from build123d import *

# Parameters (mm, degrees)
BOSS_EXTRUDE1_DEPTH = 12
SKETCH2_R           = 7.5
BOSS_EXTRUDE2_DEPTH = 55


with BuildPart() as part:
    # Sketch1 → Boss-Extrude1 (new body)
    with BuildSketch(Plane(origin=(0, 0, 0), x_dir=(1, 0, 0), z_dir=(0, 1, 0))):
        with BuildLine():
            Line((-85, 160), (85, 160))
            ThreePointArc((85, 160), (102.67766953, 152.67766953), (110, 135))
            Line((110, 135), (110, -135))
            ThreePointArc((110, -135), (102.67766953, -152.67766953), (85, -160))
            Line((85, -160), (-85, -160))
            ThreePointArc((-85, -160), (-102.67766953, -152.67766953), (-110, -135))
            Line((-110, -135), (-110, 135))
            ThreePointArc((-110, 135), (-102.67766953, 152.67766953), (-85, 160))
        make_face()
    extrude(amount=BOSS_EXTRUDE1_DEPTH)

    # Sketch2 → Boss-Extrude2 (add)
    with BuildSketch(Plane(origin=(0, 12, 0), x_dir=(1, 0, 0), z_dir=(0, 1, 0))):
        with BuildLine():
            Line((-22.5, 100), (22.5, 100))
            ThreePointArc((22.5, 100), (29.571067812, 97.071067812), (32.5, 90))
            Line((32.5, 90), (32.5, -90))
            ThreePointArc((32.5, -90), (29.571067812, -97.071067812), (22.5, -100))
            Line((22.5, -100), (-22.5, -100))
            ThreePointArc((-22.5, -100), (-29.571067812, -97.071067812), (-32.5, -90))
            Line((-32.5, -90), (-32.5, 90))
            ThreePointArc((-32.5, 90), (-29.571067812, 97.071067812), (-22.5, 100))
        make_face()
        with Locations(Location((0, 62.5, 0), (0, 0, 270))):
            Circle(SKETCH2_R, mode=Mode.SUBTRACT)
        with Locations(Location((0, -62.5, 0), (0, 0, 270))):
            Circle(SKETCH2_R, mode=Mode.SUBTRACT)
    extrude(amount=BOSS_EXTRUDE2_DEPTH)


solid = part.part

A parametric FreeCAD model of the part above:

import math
import FreeCAD as App
import Part
import Sketcher
Q = App.Units.Quantity

doc = App.newDocument("Part")
params = doc.addObject("Spreadsheet::Sheet", "Params")
for row, (alias, value) in enumerate([
    ("sketch1_radius", "25 mm"),
    ("sketch1_width", "170 mm"),
    ("sketch1_height", "270 mm"),
    ("pad1_length", "12 mm"),
    ("sketch2_diameter", "15 mm"),
    ("sketch2_radius", "10 mm"),
    ("sketch2_width", "45 mm"),
    ("sketch2_height", "180 mm"),
    ("pad2_length", "55 mm"),
], start=1):
    params.set(f"A{row}", alias)
    params.set(f"B{row}", "=" + value)
    params.setAlias(f"B{row}", alias)

body = doc.addObject("PartDesign::Body", "Body")

# Sketch on XZ plane
sketch1 = body.newObject("Sketcher::SketchObject", "Sketch")
sketch1.AttachmentSupport = (doc.getObject("XZ_Plane"), [""])
sketch1.MapMode = "FlatFace"
sketch1.addGeometry([
    Part.LineSegment(App.Vector(85, -160, 0), App.Vector(-85, -160, 0)),  # 0
    Part.ArcOfCircle(Part.Circle(App.Vector(-85, -135, 0), App.Vector(0, 0, 1), 25), math.radians(180), math.radians(270)),  # 1
    Part.LineSegment(App.Vector(-110, -135, 0), App.Vector(-110, 135, 0)),  # 2
    Part.ArcOfCircle(Part.Circle(App.Vector(-85, 135, 0), App.Vector(0, 0, 1), 25), math.radians(90), math.radians(180)),  # 3
    Part.LineSegment(App.Vector(-85, 160, 0), App.Vector(85, 160, 0)),  # 4
    Part.ArcOfCircle(Part.Circle(App.Vector(85, 135, 0), App.Vector(0, 0, 1), 25), math.radians(0), math.radians(90)),  # 5
    Part.LineSegment(App.Vector(110, 135, 0), App.Vector(110, -135, 0)),  # 6
    Part.ArcOfCircle(Part.Circle(App.Vector(85, -135, 0), App.Vector(0, 0, 1), 25), math.radians(-90), math.radians(0)),  # 7
], False)
sketch1.addConstraint([
    Sketcher.Constraint("Tangent", 0, 2, 1, 2),
    Sketcher.Constraint("Tangent", 1, 1, 2, 1),
    Sketcher.Constraint("Tangent", 2, 2, 3, 2),
    Sketcher.Constraint("Tangent", 3, 1, 4, 1),
    Sketcher.Constraint("Tangent", 4, 2, 5, 2),
    Sketcher.Constraint("Tangent", 5, 1, 6, 1),
    Sketcher.Constraint("Tangent", 6, 2, 7, 2),
    Sketcher.Constraint("Tangent", 7, 1, 0, 1),
    Sketcher.Constraint("Horizontal", 0),
    Sketcher.Constraint("Vertical", 2),
    Sketcher.Constraint("Horizontal", 4),
    Sketcher.Constraint("Vertical", 6),
    Sketcher.Constraint("Equal", 1, 3),
    Sketcher.Constraint("Equal", 3, 5),
    Sketcher.Constraint("Equal", 5, 7),
    Sketcher.Constraint("Symmetric", 1, 3, 5, 3, -1, 1),
    Sketcher.Constraint("Radius", 1, Q("25 mm")),
    Sketcher.Constraint("DistanceX", 0, 2, 0, 1, Q("170 mm")),
    Sketcher.Constraint("DistanceY", 2, 1, 2, 2, Q("270 mm")),
])
sketch1.setExpression("Constraints[16]", "Params.sketch1_radius")
sketch1.setExpression("Constraints[17]", "Params.sketch1_width")
sketch1.setExpression("Constraints[18]", "Params.sketch1_height")
pad1 = body.newObject("PartDesign::Pad", "Pad")
pad1.Profile = sketch1
pad1.setExpression("Length", "Params.pad1_length")
pad1.Reversed = True

# Sketch on XZ plane
sketch2 = body.newObject("Sketcher::SketchObject", "Sketch001")
sketch2.AttachmentSupport = (doc.getObject("XZ_Plane"), [""])
sketch2.MapMode = "FlatFace"
sketch2.AttachmentOffset = App.Placement(App.Vector(0, 0, -12), App.Rotation())
sketch2.addGeometry([
    Part.LineSegment(App.Vector(22, -100, 0), App.Vector(-22, -100, 0)),  # 0
    Part.ArcOfCircle(Part.Circle(App.Vector(-22, -90, 0), App.Vector(0, 0, 1), 10), math.radians(180), math.radians(270)),  # 1
    Part.LineSegment(App.Vector(-32, -90, 0), App.Vector(-32, 90, 0)),  # 2
    Part.ArcOfCircle(Part.Circle(App.Vector(-22, 90, 0), App.Vector(0, 0, 1), 10), math.radians(90), math.radians(180)),  # 3
    Part.LineSegment(App.Vector(-22, 100, 0), App.Vector(22, 100, 0)),  # 4
    Part.ArcOfCircle(Part.Circle(App.Vector(22, 90, 0), App.Vector(0, 0, 1), 10), math.radians(0), math.radians(90)),  # 5
    Part.LineSegment(App.Vector(32, 90, 0), App.Vector(32, -90, 0)),  # 6
    Part.ArcOfCircle(Part.Circle(App.Vector(22, -90, 0), App.Vector(0, 0, 1), 10), math.radians(-90), math.radians(0)),  # 7
    Part.Circle(App.Vector(0, 62, 0), App.Vector(0, 0, 1), 8),  # 8
    Part.Circle(App.Vector(0, -62, 0), App.Vector(0, 0, 1), 8),  # 9
], False)
sketch2.addConstraint([
    Sketcher.Constraint("Tangent", 0, 2, 1, 2),
    Sketcher.Constraint("Tangent", 1, 1, 2, 1),
    Sketcher.Constraint("Tangent", 2, 2, 3, 2),
    Sketcher.Constraint("Tangent", 3, 1, 4, 1),
    Sketcher.Constraint("Tangent", 4, 2, 5, 2),
    Sketcher.Constraint("Tangent", 5, 1, 6, 1),
    Sketcher.Constraint("Tangent", 6, 2, 7, 2),
    Sketcher.Constraint("Tangent", 7, 1, 0, 1),
    Sketcher.Constraint("Horizontal", 0),
    Sketcher.Constraint("Vertical", 2),
    Sketcher.Constraint("Horizontal", 4),
    Sketcher.Constraint("Vertical", 6),
    Sketcher.Constraint("Equal", 1, 3),
    Sketcher.Constraint("Equal", 3, 5),
    Sketcher.Constraint("Equal", 5, 7),
    Sketcher.Constraint("Equal", 8, 9),
    Sketcher.Constraint("Symmetric", 1, 3, 5, 3, -1, 1),
    Sketcher.Constraint("Symmetric", 8, 3, 9, 3, -1, 1),
    Sketcher.Constraint("PointOnObject", 8, 3, -2),
    Sketcher.Constraint("Diameter", 8, Q("15 mm")),
    Sketcher.Constraint("Radius", 1, Q("10 mm")),
    Sketcher.Constraint("DistanceX", 0, 2, 0, 1, Q("45 mm")),
    Sketcher.Constraint("DistanceY", 2, 1, 2, 2, Q("180 mm")),
    Sketcher.Constraint("DistanceY", 9, 3, 8, 3, Q("125 mm")),
])
sketch2.setExpression("Constraints[19]", "Params.sketch2_diameter")
sketch2.setExpression("Constraints[20]", "Params.sketch2_radius")
sketch2.setExpression("Constraints[21]", "Params.sketch2_width")
sketch2.setExpression("Constraints[22]", "Params.sketch2_height")
pad2 = body.newObject("PartDesign::Pad", "Pad001")
pad2.Profile = sketch2
pad2.setExpression("Length", "Params.pad2_length")
pad2.Reversed = True

doc.recompute()
